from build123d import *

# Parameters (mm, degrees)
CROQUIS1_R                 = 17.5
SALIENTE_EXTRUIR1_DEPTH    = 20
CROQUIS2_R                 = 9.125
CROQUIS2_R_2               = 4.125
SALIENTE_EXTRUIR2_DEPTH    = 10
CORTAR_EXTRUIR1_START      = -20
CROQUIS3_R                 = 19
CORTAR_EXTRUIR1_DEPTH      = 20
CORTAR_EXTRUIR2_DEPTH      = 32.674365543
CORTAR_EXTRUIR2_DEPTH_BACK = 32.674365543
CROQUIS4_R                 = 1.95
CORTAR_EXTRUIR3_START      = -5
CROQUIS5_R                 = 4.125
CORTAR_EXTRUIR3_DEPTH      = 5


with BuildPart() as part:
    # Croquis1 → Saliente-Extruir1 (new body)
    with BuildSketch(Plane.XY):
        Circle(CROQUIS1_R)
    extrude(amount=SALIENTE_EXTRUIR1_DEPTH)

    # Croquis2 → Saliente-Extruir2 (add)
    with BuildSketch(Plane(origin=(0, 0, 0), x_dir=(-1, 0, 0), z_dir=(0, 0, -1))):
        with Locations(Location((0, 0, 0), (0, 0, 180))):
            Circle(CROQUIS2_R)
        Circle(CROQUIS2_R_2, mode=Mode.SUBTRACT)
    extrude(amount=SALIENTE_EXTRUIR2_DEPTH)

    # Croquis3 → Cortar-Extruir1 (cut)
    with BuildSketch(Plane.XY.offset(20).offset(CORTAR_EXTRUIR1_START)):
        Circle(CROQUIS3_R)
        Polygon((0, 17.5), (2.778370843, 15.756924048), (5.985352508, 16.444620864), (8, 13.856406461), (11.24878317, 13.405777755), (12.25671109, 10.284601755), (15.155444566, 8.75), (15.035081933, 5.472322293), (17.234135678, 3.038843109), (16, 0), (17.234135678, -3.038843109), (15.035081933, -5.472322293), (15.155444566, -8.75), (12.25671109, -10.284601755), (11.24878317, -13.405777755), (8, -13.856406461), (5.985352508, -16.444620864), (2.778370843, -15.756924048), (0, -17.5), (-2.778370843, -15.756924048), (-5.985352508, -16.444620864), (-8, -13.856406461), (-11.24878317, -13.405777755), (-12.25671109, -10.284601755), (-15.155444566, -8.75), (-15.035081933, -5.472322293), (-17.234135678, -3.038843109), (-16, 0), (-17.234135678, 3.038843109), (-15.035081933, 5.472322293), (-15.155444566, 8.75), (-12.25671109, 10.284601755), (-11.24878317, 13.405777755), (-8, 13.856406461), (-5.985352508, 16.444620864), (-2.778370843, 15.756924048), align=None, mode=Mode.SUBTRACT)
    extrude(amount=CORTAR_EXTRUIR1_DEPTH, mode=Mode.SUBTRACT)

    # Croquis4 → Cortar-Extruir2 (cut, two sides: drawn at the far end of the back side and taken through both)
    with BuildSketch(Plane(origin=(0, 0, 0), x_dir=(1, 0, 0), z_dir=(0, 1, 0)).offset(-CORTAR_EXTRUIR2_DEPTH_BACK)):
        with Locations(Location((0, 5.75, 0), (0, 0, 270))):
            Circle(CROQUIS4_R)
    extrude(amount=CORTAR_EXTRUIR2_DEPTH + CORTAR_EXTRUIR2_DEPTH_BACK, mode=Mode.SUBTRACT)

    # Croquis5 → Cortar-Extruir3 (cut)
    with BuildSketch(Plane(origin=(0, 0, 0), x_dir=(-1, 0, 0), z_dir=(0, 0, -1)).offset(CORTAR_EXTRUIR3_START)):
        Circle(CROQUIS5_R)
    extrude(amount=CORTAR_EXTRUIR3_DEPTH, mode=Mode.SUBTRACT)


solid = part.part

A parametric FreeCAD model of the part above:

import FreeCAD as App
import Part
import Sketcher
Q = App.Units.Quantity

doc = App.newDocument("Part")
body = doc.addObject("PartDesign::Body", "Body")

# Sketch on XY plane
sketch1 = body.newObject("Sketcher::SketchObject", "Sketch")
sketch1.AttachmentSupport = (doc.getObject("XY_Plane"), [""])
sketch1.MapMode = "FlatFace"
sketch1.addGeometry(Part.Circle(App.Vector(0, 0, 0), App.Vector(0, 0, 1), 18), False)
sketch1.addConstraint([
    Sketcher.Constraint("Coincident", 0, 3, -1, 1),
    Sketcher.Constraint("Diameter", 0, Q("35 mm")),
])
pad1 = body.newObject("PartDesign::Pad", "Pad")
pad1.Profile = sketch1
pad1.Length = 20

# Sketch on XY plane
sketch2 = body.newObject("Sketcher::SketchObject", "Sketch001")
sketch2.AttachmentSupport = (doc.getObject("XY_Plane"), [""])
sketch2.MapMode = "FlatFace"
sketch2.addGeometry([
    Part.Circle(App.Vector(0, 0, 0), App.Vector(0, 0, 1), 9.1),
    Part.Circle(App.Vector(0, 0, 0), App.Vector(0, 0, 1), 4.1),
], False)
sketch2.addConstraint([
    Sketcher.Constraint("Coincident", 0, 3, -1, 1),
    Sketcher.Constraint("Coincident", 1, 3, -1, 1),
    Sketcher.Constraint("Diameter", 0, Q("18.25 mm")),
    Sketcher.Constraint("Diameter", 1, Q("8.25 mm")),
])
pad2 = body.newObject("PartDesign::Pad", "Pad001")
pad2.Profile = sketch2
pad2.Length = 10
pad2.Reversed = True

# Sketch on XY plane
sketch3 = body.newObject("Sketcher::SketchObject", "Sketch002")
sketch3.AttachmentSupport = (doc.getObject("XY_Plane"), [""])
sketch3.MapMode = "FlatFace"
sketch3.addGeometry([
    Part.Circle(App.Vector(0, 0, 0), App.Vector(0, 0, 1), 19),  # 0
    Part.LineSegment(App.Vector(-2.8, 15.8, 0), App.Vector(0, 17.5, 0)),  # 1
    Part.LineSegment(App.Vector(0, 17.5, 0), App.Vector(2.8, 15.8, 0)),  # 2
    Part.LineSegment(App.Vector(2.8, 15.8, 0), App.Vector(6, 16.4, 0)),  # 3
    Part.LineSegment(App.Vector(6, 16.4, 0), App.Vector(8, 13.9, 0)),  # 4
    Part.LineSegment(App.Vector(8, 13.9, 0), App.Vector(11.2, 13.4, 0)),  # 5
    Part.LineSegment(App.Vector(11.2, 13.4, 0), App.Vector(12.3, 10.3, 0)),  # 6
    Part.LineSegment(App.Vector(12.3, 10.3, 0), App.Vector(15.2, 8.8, 0)),  # 7
    Part.LineSegment(App.Vector(15.2, 8.8, 0), App.Vector(15, 5.5, 0)),  # 8
    Part.LineSegment(App.Vector(15, 5.5, 0), App.Vector(17.2, 3, 0)),  # 9
    Part.LineSegment(App.Vector(17.2, 3, 0), App.Vector(16, 0, 0)),  # 10
    Part.LineSegment(App.Vector(16, 0, 0), App.Vector(17.2, -3, 0)),  # 11
    Part.LineSegment(App.Vector(17.2, -3, 0), App.Vector(15, -5.5, 0)),  # 12
    Part.LineSegment(App.Vector(15, -5.5, 0), App.Vector(15.2, -8.8, 0)),  # 13
    Part.LineSegment(App.Vector(15.2, -8.8, 0), App.Vector(12.3, -10.3, 0)),  # 14
    Part.LineSegment(App.Vector(12.3, -10.3, 0), App.Vector(11.2, -13.4, 0)),  # 15
    Part.LineSegment(App.Vector(11.2, -13.4, 0), App.Vector(8, -13.9, 0)),  # 16
    Part.LineSegment(App.Vector(8, -13.9, 0), App.Vector(6, -16.4, 0)),  # 17
    Part.LineSegment(App.Vector(6, -16.4, 0), App.Vector(2.8, -15.8, 0)),  # 18
    Part.LineSegment(App.Vector(2.8, -15.8, 0), App.Vector(0, -17.5, 0)),  # 19
    Part.LineSegment(App.Vector(0, -17.5, 0), App.Vector(-2.8, -15.8, 0)),  # 20
    Part.LineSegment(App.Vector(-2.8, -15.8, 0), App.Vector(-6, -16.4, 0)),  # 21
    Part.LineSegment(App.Vector(-6, -16.4, 0), App.Vector(-8, -13.9, 0)),  # 22
    Part.LineSegment(App.Vector(-8, -13.9, 0), App.Vector(-11.2, -13.4, 0)),  # 23
    Part.LineSegment(App.Vector(-11.2, -13.4, 0), App.Vector(-12.3, -10.3, 0)),  # 24
    Part.LineSegment(App.Vector(-12.3, -10.3, 0), App.Vector(-15.2, -8.8, 0)),  # 25
    Part.LineSegment(App.Vector(-15.2, -8.8, 0), App.Vector(-15, -5.5, 0)),  # 26
    Part.LineSegment(App.Vector(-15, -5.5, 0), App.Vector(-17.2, -3, 0)),  # 27
    Part.LineSegment(App.Vector(-17.2, -3, 0), App.Vector(-16, 0, 0)),  # 28
    Part.LineSegment(App.Vector(-16, 0, 0), App.Vector(-17.2, 3, 0)),  # 29
    Part.LineSegment(App.Vector(-17.2, 3, 0), App.Vector(-15, 5.5, 0)),  # 30
    Part.LineSegment(App.Vector(-15, 5.5, 0), App.Vector(-15.2, 8.8, 0)),  # 31
    Part.LineSegment(App.Vector(-15.2, 8.8, 0), App.Vector(-12.3, 10.3, 0)),  # 32
    Part.LineSegment(App.Vector(-12.3, 10.3, 0), App.Vector(-11.2, 13.4, 0)),  # 33
    Part.LineSegment(App.Vector(-11.2, 13.4, 0), App.Vector(-8, 13.9, 0)),  # 34
    Part.LineSegment(App.Vector(-8, 13.9, 0), App.Vector(-6, 16.4, 0)),  # 35
    Part.LineSegment(App.Vector(-6, 16.4, 0), App.Vector(-2.8, 15.8, 0)),  # 36
], False)
sketch3.addConstraint([
    Sketcher.Constraint("Coincident", 1, 2, 2, 1),
    Sketcher.Constraint("Coincident", 2, 2, 3, 1),
    Sketcher.Constraint("Coincident", 3, 2, 4, 1),
    Sketcher.Constraint("Coincident", 4, 2, 5, 1),
    Sketcher.Constraint("Coincident", 5, 2, 6, 1),
    Sketcher.Constraint("Coincident", 6, 2, 7, 1),
    Sketcher.Constraint("Coincident", 7, 2, 8, 1),
    Sketcher.Constraint("Coincident", 8, 2, 9, 1),
    Sketcher.Constraint("Coincident", 9, 2, 10, 1),
    Sketcher.Constraint("Coincident", 10, 2, 11, 1),
    Sketcher.Constraint("Coincident", 11, 2, 12, 1),
    Sketcher.Constraint("Coincident", 12, 2, 13, 1),
    Sketcher.Constraint("Coincident", 13, 2, 14, 1),
    Sketcher.Constraint("Coincident", 14, 2, 15, 1),
    Sketcher.Constraint("Coincident", 15, 2, 16, 1),
    Sketcher.Constraint("Coincident", 16, 2, 17, 1),
    Sketcher.Constraint("Coincident", 17, 2, 18, 1),
    Sketcher.Constraint("Coincident", 18, 2, 19, 1),
    Sketcher.Constraint("Coincident", 19, 2, 20, 1),
    Sketcher.Constraint("Coincident", 20, 2, 21, 1),
    Sketcher.Constraint("Coincident", 21, 2, 22, 1),
    Sketcher.Constraint("Coincident", 22, 2, 23, 1),
    Sketcher.Constraint("Coincident", 23, 2, 24, 1),
    Sketcher.Constraint("Coincident", 24, 2, 25, 1),
    Sketcher.Constraint("Coincident", 25, 2, 26, 1),
    Sketcher.Constraint("Coincident", 26, 2, 27, 1),
    Sketcher.Constraint("Coincident", 27, 2, 28, 1),
    Sketcher.Constraint("Coincident", 28, 2, 29, 1),
    Sketcher.Constraint("Coincident", 29, 2, 30, 1),
    Sketcher.Constraint("Coincident", 30, 2, 31, 1),
    Sketcher.Constraint("Coincident", 31, 2, 32, 1),
    Sketcher.Constraint("Coincident", 32, 2, 33, 1),
    Sketcher.Constraint("Coincident", 33, 2, 34, 1),
    Sketcher.Constraint("Coincident", 34, 2, 35, 1),
    Sketcher.Constraint("Coincident", 35, 2, 36, 1),
    Sketcher.Constraint("Coincident", 36, 2, 1, 1),
    Sketcher.Constraint("Coincident", 0, 3, -1, 1),
    Sketcher.Constraint("Symmetric", 1, 2, 19, 2, -1, 1),
    Sketcher.Constraint("Symmetric", 2, 2, 20, 2, -1, 1),
    Sketcher.Constraint("Symmetric", 3, 2, 21, 2, -1, 1),
    Sketcher.Constraint("Symmetric", 4, 2, 22, 2, -1, 1),
    Sketcher.Constraint("Symmetric", 5, 2, 23, 2, -1, 1),
    Sketcher.Constraint("Symmetric", 6, 2, 24, 2, -1, 1),
    Sketcher.Constraint("Symmetric", 7, 2, 25, 2, -1, 1),
    Sketcher.Constraint("Symmetric", 8, 2, 26, 2, -1, 1),
    Sketcher.Constraint("Symmetric", 9, 2, 27, 2, -1, 1),
    Sketcher.Constraint("Symmetric", 10, 2, 28, 2, -1, 1),
    Sketcher.Constraint("Symmetric", 11, 2, 29, 2, -1, 1),
    Sketcher.Constraint("Symmetric", 12, 2, 30, 2, -1, 1),
    Sketcher.Constraint("Symmetric", 13, 2, 31, 2, -1, 1),
    Sketcher.Constraint("Symmetric", 14, 2, 32, 2, -1, 1),
    Sketcher.Constraint("Symmetric", 15, 2, 33, 2, -1, 1),
    Sketcher.Constraint("Symmetric", 16, 2, 34, 2, -1, 1),
    Sketcher.Constraint("Symmetric", 17, 2, 35, 2, -1, 1),
    Sketcher.Constraint("Symmetric", 18, 2, 36, 2, -1, 1),
    Sketcher.Constraint("Symmetric", 18, 2, 20, 2, -2),
    Sketcher.Constraint("Symmetric", 17, 2, 21, 2, -2),
    Sketcher.Constraint("Symmetric", 16, 2, 22, 2, -2),
    Sketcher.Constraint("Symmetric", 15, 2, 23, 2, -2),
    Sketcher.Constraint("Symmetric", 14, 2, 24, 2, -2),
    Sketcher.Constraint("Symmetric", 13, 2, 25, 2, -2),
    Sketcher.Constraint("Symmetric", 12, 2, 26, 2, -2),
    Sketcher.Constraint("Symmetric", 11, 2, 27, 2, -2),
    Sketcher.Constraint("PointOnObject", 1, 2, -2),
    Sketcher.Constraint("PointOnObject", 10, 2, -1),
    Sketcher.Constraint("Equal", 2, 3),
    Sketcher.Constraint("Equal", 3, 4),
    Sketcher.Constraint("Equal", 4, 5),
    Sketcher.Constraint("Equal", 5, 6),
    Sketcher.Constraint("Equal", 6, 7),
    Sketcher.Constraint("Equal", 7, 8),
    Sketcher.Constraint("Equal", 8, 9),
    Sketcher.Constraint("Equal", 9, 10),
    Sketcher.Constraint("Diameter", 0, Q("38 mm")),
    Sketcher.Constraint("DistanceX", -1, 1, 4, 2, Q("8 mm")),
    Sketcher.Constraint("DistanceX", -1, 1, 10, 2, Q("16 mm")),
    Sketcher.Constraint("DistanceY", -1, 1, 1, 2, Q("17.5 mm")),
    Sketcher.Constraint("DistanceY", -1, 1, 7, 2, Q("8.75 mm")),
    Sketcher.Constraint("DistanceY", -1, 1, 6, 2, Q("10.284602 mm")),
    Sketcher.Constraint("DistanceX", 5, 2, 8, 2, Q("3.786299 mm")),
    Sketcher.Constraint("DistanceY", 8, 2, 3, 2, Q("10.972299 mm")),
    Sketcher.Constraint("DistanceX", -1, 1, 2, 2, Q("2.778371 mm")),
    Sketcher.Constraint("DistanceY", -1, 1, 3, 2, Q("16.444621 mm")),
    Sketcher.Constraint("DistanceX", -1, 1, 6, 2, Q("12.256711 mm")),
])
pocket1 = body.newObject("PartDesign::Pocket", "Pocket")
pocket1.Profile = sketch3
pocket1.Length = 20
pocket1.Reversed = True

# Sketch on XZ plane
sketch4 = body.newObject("Sketcher::SketchObject", "Sketch003")
sketch4.AttachmentSupport = (doc.getObject("XZ_Plane"), [""])
sketch4.MapMode = "FlatFace"
sketch4.addGeometry(Part.Circle(App.Vector(0, -5.8, 0), App.Vector(0, 0, 1), 1.9), False)
sketch4.addConstraint([
    Sketcher.Constraint("PointOnObject", 0, 3, -2),
    Sketcher.Constraint("Diameter", 0, Q("3.9 mm")),
    Sketcher.Constraint("DistanceY", 0, 3, -1, 1, Q("5.75 mm")),
])
pocket2 = body.newObject("PartDesign::Pocket", "Pocket001")
pocket2.Profile = sketch4
pocket2.Type = "ThroughAll"
pocket2.Midplane = True

# Sketch on XY plane
sketch5 = body.newObject("Sketcher::SketchObject", "Sketch004")
sketch5.AttachmentSupport = (doc.getObject("XY_Plane"), [""])
sketch5.MapMode = "FlatFace"
sketch5.AttachmentOffset = App.Placement(App.Vector(0, 0, 5), App.Rotation())
sketch5.addGeometry(Part.Circle(App.Vector(0, 0, 0), App.Vector(0, 0, 1), 4.1), False)
sketch5.addConstraint([
    Sketcher.Constraint("Coincident", 0, 3, -1, 1),
    Sketcher.Constraint("Diameter", 0, Q("8.25 mm")),
])
pocket3 = body.newObject("PartDesign::Pocket", "Pocket002")
pocket3.Profile = sketch5
pocket3.Length = 5

doc.recompute()
